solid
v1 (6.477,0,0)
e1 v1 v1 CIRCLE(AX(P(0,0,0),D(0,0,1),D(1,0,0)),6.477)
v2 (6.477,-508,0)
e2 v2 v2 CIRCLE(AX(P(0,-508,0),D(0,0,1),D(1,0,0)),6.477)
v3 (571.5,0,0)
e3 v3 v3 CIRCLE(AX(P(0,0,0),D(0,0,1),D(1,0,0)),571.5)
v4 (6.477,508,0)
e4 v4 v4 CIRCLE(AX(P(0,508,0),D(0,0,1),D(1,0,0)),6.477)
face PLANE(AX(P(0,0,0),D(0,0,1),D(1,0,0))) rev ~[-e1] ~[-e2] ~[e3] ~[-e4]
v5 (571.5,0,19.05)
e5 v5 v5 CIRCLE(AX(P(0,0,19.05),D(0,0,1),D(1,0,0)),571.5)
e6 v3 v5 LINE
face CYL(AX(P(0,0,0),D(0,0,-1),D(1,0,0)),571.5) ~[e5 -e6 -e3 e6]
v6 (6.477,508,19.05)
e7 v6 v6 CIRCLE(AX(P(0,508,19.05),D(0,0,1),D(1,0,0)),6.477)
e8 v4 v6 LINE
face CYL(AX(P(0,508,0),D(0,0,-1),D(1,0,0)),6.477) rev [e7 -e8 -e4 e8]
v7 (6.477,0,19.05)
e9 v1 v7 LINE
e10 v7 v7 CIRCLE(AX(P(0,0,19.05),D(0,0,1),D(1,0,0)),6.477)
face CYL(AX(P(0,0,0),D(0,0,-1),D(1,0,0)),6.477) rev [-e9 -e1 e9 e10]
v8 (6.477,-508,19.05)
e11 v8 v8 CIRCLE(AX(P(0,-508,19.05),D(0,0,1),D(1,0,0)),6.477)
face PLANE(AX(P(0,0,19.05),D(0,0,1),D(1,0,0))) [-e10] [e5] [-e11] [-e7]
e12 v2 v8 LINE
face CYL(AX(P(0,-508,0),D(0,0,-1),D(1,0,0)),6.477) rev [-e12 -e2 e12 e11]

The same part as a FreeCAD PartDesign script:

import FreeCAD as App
import Part
import Sketcher
from FreeCAD import Vector
Q = App.Units.Quantity

doc = App.newDocument("Part")
body = doc.addObject("PartDesign::Body", "Body")

# Sketch on XY plane
sketch1 = doc.addObject("Sketcher::SketchObject", "Sketch")
body.addObject(sketch1)
sketch1.AttachmentSupport = (doc.XY_Plane, [""])
sketch1.MapMode = "FlatFace"
sketch1.addGeometry(Part.Circle(Vector(0, 0, 0), Vector(0, 0, 1), 572), False)
sketch1.addGeometry(Part.Circle(Vector(0, -508, 0), Vector(0, 0, 1), 6), False)
sketch1.addGeometry(Part.Circle(Vector(0, 0, 0), Vector(0, 0, 1), 6), False)
sketch1.addGeometry(Part.Circle(Vector(0, 508, 0), Vector(0, 0, 1), 6), False)
sketch1.addConstraint(Sketcher.Constraint("Coincident", 0, 3, -1, 1))
sketch1.addConstraint(Sketcher.Constraint("Coincident", 2, 3, -1, 1))
sketch1.addConstraint(Sketcher.Constraint("Equal", 1, 2))
sketch1.addConstraint(Sketcher.Constraint("Equal", 2, 3))
sketch1.addConstraint(Sketcher.Constraint("Symmetric", 1, 3, 3, 3, -1, 1))
sketch1.addConstraint(Sketcher.Constraint("PointOnObject", 1, 3, -2))
sketch1.addConstraint(Sketcher.Constraint("Diameter", 0, Q("45 in")))
sketch1.addConstraint(Sketcher.Constraint("Diameter", 1, Q("0.51 in")))
sketch1.addConstraint(Sketcher.Constraint("DistanceY", 1, 3, -1, 1, Q("20 in")))
pad1 = doc.addObject("PartDesign::Pad", "Pad")
body.addObject(pad1)
pad1.Profile = sketch1
pad1.Length = Q("0.75 in")

doc.recompute()
